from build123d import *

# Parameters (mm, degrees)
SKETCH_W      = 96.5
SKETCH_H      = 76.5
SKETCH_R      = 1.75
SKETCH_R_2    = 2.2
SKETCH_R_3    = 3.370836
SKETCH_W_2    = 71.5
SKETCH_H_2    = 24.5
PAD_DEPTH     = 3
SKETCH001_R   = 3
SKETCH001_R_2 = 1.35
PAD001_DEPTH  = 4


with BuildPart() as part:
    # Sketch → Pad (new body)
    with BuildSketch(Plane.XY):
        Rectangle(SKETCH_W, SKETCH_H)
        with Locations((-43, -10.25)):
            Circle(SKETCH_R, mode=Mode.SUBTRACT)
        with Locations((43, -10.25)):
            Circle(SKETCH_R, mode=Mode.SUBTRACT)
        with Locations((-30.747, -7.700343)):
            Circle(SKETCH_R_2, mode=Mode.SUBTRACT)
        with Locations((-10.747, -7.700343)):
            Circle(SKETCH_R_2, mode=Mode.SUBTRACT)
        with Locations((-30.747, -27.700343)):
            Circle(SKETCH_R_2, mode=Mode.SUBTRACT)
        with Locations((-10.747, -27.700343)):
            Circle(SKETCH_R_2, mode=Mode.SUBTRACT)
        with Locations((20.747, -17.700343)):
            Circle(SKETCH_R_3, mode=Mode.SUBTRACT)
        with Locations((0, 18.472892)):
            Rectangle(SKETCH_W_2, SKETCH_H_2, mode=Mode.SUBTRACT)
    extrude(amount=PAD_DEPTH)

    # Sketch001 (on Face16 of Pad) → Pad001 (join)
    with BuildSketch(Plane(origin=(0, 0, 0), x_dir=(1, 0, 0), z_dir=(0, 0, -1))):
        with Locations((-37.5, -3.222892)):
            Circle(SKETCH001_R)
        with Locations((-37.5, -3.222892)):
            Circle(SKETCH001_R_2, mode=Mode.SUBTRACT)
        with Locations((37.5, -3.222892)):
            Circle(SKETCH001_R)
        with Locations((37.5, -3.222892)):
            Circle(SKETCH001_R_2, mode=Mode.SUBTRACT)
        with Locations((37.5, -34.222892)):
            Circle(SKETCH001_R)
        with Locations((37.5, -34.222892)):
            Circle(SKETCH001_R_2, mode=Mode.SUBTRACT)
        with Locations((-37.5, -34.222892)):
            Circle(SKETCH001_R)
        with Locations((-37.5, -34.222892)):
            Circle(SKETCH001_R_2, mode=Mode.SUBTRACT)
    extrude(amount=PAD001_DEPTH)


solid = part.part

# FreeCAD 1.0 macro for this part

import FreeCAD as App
import Part
import Sketcher

V = App.Vector

doc = App.newDocument("Part")
params = doc.addObject("Spreadsheet::Sheet", "Params")
for row, (alias, value) in enumerate([
    ("sketch1_diameter", "4.4 mm"),
    ("sketch1_diameter2", "3.5 mm"),
    ("sketch1_width", "96.5 mm"),
    ("sketch1_width2", "71.5 mm"),
    ("sketch1_height", "76.5 mm"),
    ("pad1_length", "3 mm"),
    ("sketch2_diameter", "6 mm"),
    ("sketch2_diameter2", "2.7 mm"),
    ("pad2_length", "4 mm"),
], start=1):
    params.set(f"A{row}", alias)
    params.set(f"B{row}", "=" + value)
    params.setAlias(f"B{row}", alias)

body = doc.addObject("PartDesign::Body", "Body")

# Sketch on XY plane
sketch1 = body.newObject("Sketcher::SketchObject", "Sketch")
sketch1.AttachmentSupport = (doc.getObject("XY_Plane"), [""])
sketch1.MapMode = "FlatFace"
sketch1.addGeometry(Part.LineSegment(V(-48.2, 38.2, 0), V(-48.2, -38.2, 0)), False)
sketch1.addGeometry(Part.LineSegment(V(-48.2, -38.2, 0), V(48.2, -38.2, 0)), False)
sketch1.addGeometry(Part.LineSegment(V(48.2, -38.2, 0), V(48.2, 38.2, 0)), False)
sketch1.addGeometry(Part.LineSegment(V(48.2, 38.2, 0), V(-48.2, 38.2, 0)), False)
sketch1.addGeometry(Part.Circle(V(-30.7, -27.7, 0), V(0, 0, 1), 2.2), False)
sketch1.addGeometry(Part.Circle(V(-10.7, -27.7, 0), V(0, 0, 1), 2.2), False)
sketch1.addGeometry(Part.Circle(V(-43, -10.2, 0), V(0, 0, 1), 1.8), False)
sketch1.addGeometry(Part.Circle(V(-30.7, -7.7, 0), V(0, 0, 1), 2.2), False)
sketch1.addGeometry(Part.Circle(V(-10.7, -7.7, 0), V(0, 0, 1), 2.2), False)
sketch1.addGeometry(Part.Circle(V(20.7, -17.7, 0), V(0, 0, 1), 3.4), False)
sketch1.addGeometry(Part.Circle(V(43, -10.2, 0), V(0, 0, 1), 1.8), False)
sketch1.addGeometry(Part.LineSegment(V(35.8, 6.2, 0), V(-35.8, 6.2, 0)), False)
sketch1.addGeometry(Part.LineSegment(V(-35.8, 6.2, 0), V(-35.8, 30.7, 0)), False)
sketch1.addGeometry(Part.LineSegment(V(-35.8, 30.7, 0), V(35.8, 30.7, 0)), False)
sketch1.addGeometry(Part.LineSegment(V(35.8, 30.7, 0), V(35.8, 6.2, 0)), False)
sketch1.addConstraint(Sketcher.Constraint("Coincident", 0, 2, 1, 1))
sketch1.addConstraint(Sketcher.Constraint("Coincident", 1, 2, 2, 1))
sketch1.addConstraint(Sketcher.Constraint("Coincident", 2, 2, 3, 1))
sketch1.addConstraint(Sketcher.Constraint("Coincident", 3, 2, 0, 1))
sketch1.addConstraint(Sketcher.Constraint("Coincident", 11, 2, 12, 1))
sketch1.addConstraint(Sketcher.Constraint("Coincident", 12, 2, 13, 1))
sketch1.addConstraint(Sketcher.Constraint("Coincident", 13, 2, 14, 1))
sketch1.addConstraint(Sketcher.Constraint("Coincident", 14, 2, 11, 1))
sketch1.addConstraint(Sketcher.Constraint("Vertical", 0))
sketch1.addConstraint(Sketcher.Constraint("Horizontal", 1))
sketch1.addConstraint(Sketcher.Constraint("Vertical", 2))
sketch1.addConstraint(Sketcher.Constraint("Horizontal", 3))
sketch1.addConstraint(Sketcher.Constraint("Horizontal", 11))
sketch1.addConstraint(Sketcher.Constraint("Vertical", 12))
sketch1.addConstraint(Sketcher.Constraint("Horizontal", 13))
sketch1.addConstraint(Sketcher.Constraint("Vertical", 14))
sketch1.addConstraint(Sketcher.Constraint("Equal", 4, 5))
sketch1.addConstraint(Sketcher.Constraint("Equal", 5, 7))
sketch1.addConstraint(Sketcher.Constraint("Equal", 7, 8))
sketch1.addConstraint(Sketcher.Constraint("Equal", 6, 10))
sketch1.addConstraint(Sketcher.Constraint("Symmetric", 0, 2, 2, 2, -1, 1))
sketch1.addConstraint(Sketcher.Constraint("Symmetric", 6, 3, 10, 3, -2))
sketch1.addConstraint(Sketcher.Constraint("Horizontal", 4, 3, 5, 3))
sketch1.addConstraint(Sketcher.Constraint("Horizontal", 7, 3, 8, 3))
sketch1.addConstraint(Sketcher.Constraint("Vertical", 4, 3, 7, 3))
sketch1.addConstraint(Sketcher.Constraint("Vertical", 5, 3, 8, 3))
sketch1.addConstraint(Sketcher.Constraint("Diameter", 4, 4.4))
sketch1.addConstraint(Sketcher.Constraint("Diameter", 6, 3.5))
sketch1.addConstraint(Sketcher.Constraint("DistanceX", 1, 1, 1, 2, 96.5))
sketch1.addConstraint(Sketcher.Constraint("DistanceX", 11, 2, 11, 1, 71.5))
sketch1.addConstraint(Sketcher.Constraint("DistanceY", 0, 2, 0, 1, 76.5))
sketch1.addConstraint(Sketcher.Constraint("DistanceY", 12, 1, 12, 2, 24.5))
sketch1.addConstraint(Sketcher.Constraint("DistanceX", 6, 3, -1, 1, 43.0))
sketch1.addConstraint(Sketcher.Constraint("DistanceX", 4, 3, 5, 3, 20.0))
sketch1.addConstraint(Sketcher.Constraint("DistanceY", 4, 3, 7, 3, 20.0))
sketch1.addConstraint(Sketcher.Constraint("DistanceY", 5, 3, 9, 3, 10.0))
sketch1.addConstraint(Sketcher.Constraint("DistanceY", 0, 2, 6, 3, 28.0))
sketch1.addConstraint(Sketcher.Constraint("DistanceX", 3, 2, 11, 2, 12.5))
sketch1.addConstraint(Sketcher.Constraint("Diameter", 9, 6.741672))
sketch1.addConstraint(Sketcher.Constraint("DistanceX", 4, 3, -1, 1, 30.747))
sketch1.addConstraint(Sketcher.Constraint("DistanceX", -1, 1, 9, 3, 20.747))
sketch1.addConstraint(Sketcher.Constraint("DistanceY", 1, 2, 13, 2, 68.972892))
sketch1.addConstraint(Sketcher.Constraint("DistanceY", 4, 3, -1, 1, 27.700343))
sketch1.setExpression("Constraints[26]", "Params.sketch1_diameter")
sketch1.setExpression("Constraints[27]", "Params.sketch1_diameter2")
sketch1.setExpression("Constraints[28]", "Params.sketch1_width")
sketch1.setExpression("Constraints[29]", "Params.sketch1_width2")
sketch1.setExpression("Constraints[30]", "Params.sketch1_height")
pad1 = body.newObject("PartDesign::Pad", "Pad")
pad1.Profile = sketch1
pad1.setExpression("Length", "Params.pad1_length")

# Sketch on XY plane
sketch2 = body.newObject("Sketcher::SketchObject", "Sketch001")
sketch2.AttachmentSupport = (doc.getObject("XY_Plane"), [""])
sketch2.MapMode = "FlatFace"
sketch2.addGeometry(Part.Circle(V(-37.5, 3.2, 0), V(0, 0, 1), 3), False)
sketch2.addGeometry(Part.Circle(V(-37.5, 3.2, 0), V(0, 0, 1), 1.4), False)
sketch2.addGeometry(Part.Circle(V(37.5, 3.2, 0), V(0, 0, 1), 3), False)
sketch2.addGeometry(Part.Circle(V(37.5, 3.2, 0), V(0, 0, 1), 1.4), False)
sketch2.addGeometry(Part.Circle(V(37.5, 34.2, 0), V(0, 0, 1), 3), False)
sketch2.addGeometry(Part.Circle(V(37.5, 34.2, 0), V(0, 0, 1), 1.4), False)
sketch2.addGeometry(Part.Circle(V(-37.5, 34.2, 0), V(0, 0, 1), 3), False)
sketch2.addGeometry(Part.Circle(V(-37.5, 34.2, 0), V(0, 0, 1), 1.4), False)
sketch2.addConstraint(Sketcher.Constraint("Coincident", 1, 3, 0, 3))
sketch2.addConstraint(Sketcher.Constraint("Coincident", 3, 3, 2, 3))
sketch2.addConstraint(Sketcher.Constraint("Coincident", 5, 3, 4, 3))
sketch2.addConstraint(Sketcher.Constraint("Coincident", 7, 3, 6, 3))
sketch2.addConstraint(Sketcher.Constraint("Equal", 0, 2))
sketch2.addConstraint(Sketcher.Constraint("Equal", 1, 3))
sketch2.addConstraint(Sketcher.Constraint("Equal", 2, 4))
sketch2.addConstraint(Sketcher.Constraint("Equal", 3, 5))
sketch2.addConstraint(Sketcher.Constraint("Equal", 4, 6))
sketch2.addConstraint(Sketcher.Constraint("Equal", 5, 7))
sketch2.addConstraint(Sketcher.Constraint("Symmetric", 0, 3, 2, 3, -2))
sketch2.addConstraint(Sketcher.Constraint("Symmetric", 4, 3, 6, 3, -2))
sketch2.addConstraint(Sketcher.Constraint("Vertical", 3, 3, 4, 3))
sketch2.addConstraint(Sketcher.Constraint("Diameter", 0, 6.0))
sketch2.addConstraint(Sketcher.Constraint("Diameter", 1, 2.7))
sketch2.addConstraint(Sketcher.Constraint("DistanceX", 0, 3, 2, 3, 75.0))
sketch2.addConstraint(Sketcher.Constraint("DistanceY", 2, 3, 4, 3, 31.0))
sketch2.addConstraint(Sketcher.Constraint("DistanceY", -1, 1, 0, 3, 3.222892))
sketch2.setExpression("Constraints[13]", "Params.sketch2_diameter")
sketch2.setExpression("Constraints[14]", "Params.sketch2_diameter2")
pad2 = body.newObject("PartDesign::Pad", "Pad001")
pad2.Profile = sketch2
pad2.setExpression("Length", "Params.pad2_length")
pad2.Reversed = True

doc.recompute()
